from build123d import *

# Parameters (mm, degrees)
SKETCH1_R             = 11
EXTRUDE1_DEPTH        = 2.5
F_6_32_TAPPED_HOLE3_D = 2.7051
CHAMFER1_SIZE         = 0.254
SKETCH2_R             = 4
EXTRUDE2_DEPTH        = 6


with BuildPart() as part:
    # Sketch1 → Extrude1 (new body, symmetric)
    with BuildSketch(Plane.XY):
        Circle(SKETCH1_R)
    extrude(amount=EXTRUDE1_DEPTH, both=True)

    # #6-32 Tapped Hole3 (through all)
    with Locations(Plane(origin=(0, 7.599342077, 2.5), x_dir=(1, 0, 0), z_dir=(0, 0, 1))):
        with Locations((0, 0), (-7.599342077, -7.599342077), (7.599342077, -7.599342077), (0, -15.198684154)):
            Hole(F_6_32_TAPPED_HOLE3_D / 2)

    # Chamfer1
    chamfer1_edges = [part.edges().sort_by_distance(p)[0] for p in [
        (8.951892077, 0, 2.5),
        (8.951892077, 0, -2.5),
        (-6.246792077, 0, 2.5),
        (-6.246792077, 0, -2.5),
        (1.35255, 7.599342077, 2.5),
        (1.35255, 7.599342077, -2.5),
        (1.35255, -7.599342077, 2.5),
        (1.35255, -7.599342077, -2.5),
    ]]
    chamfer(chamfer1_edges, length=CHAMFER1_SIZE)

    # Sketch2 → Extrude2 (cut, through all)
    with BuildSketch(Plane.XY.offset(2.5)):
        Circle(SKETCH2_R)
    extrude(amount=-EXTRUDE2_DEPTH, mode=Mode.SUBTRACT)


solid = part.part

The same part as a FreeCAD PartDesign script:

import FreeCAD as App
import Part
import Sketcher
from FreeCAD import Vector
Q = App.Units.Quantity


def edges_at(feature, points):
    """Names of the edges that pass closest to the given points."""
    edges = feature.Shape.Edges
    near = lambda p: min(range(len(edges)), key=lambda i: edges[i].distToShape(Part.Vertex(*p))[0])
    return sorted({f"Edge{near(p) + 1}" for p in points})

doc = App.newDocument("Part")
body = doc.addObject("PartDesign::Body", "Body")

# Sketch on XY plane
sketch1 = body.newObject("Sketcher::SketchObject", "Sketch")
sketch1.AttachmentSupport = (doc.getObject("XY_Plane"), [""])
sketch1.MapMode = "FlatFace"
sketch1.addGeometry(Part.Circle(Vector(0, 0, 0), Vector(0, 0, 1), 11), False)
sketch1.addConstraint(Sketcher.Constraint("Coincident", 0, 3, -1, 1))
sketch1.addConstraint(Sketcher.Constraint("Diameter", 0, Q("22 mm")))
pad1 = body.newObject("PartDesign::Pad", "Pad")
pad1.Profile = sketch1
pad1.Length = 5
pad1.Midplane = True

# Sketch on XY plane
sketch2 = body.newObject("Sketcher::SketchObject", "Sketch001")
sketch2.AttachmentSupport = (doc.getObject("XY_Plane"), [""])
sketch2.MapMode = "FlatFace"
sketch2.AttachmentOffset = App.Placement(Vector(0, 0, 2.5), App.Rotation())
sketch2.addGeometry(Part.Circle(Vector(0, 7.599342, 0), Vector(0, 0, 1), 1.35255), False)
sketch2.addGeometry(Part.Circle(Vector(-7.599342, 0, 0), Vector(0, 0, 1), 1.35255), False)
sketch2.addGeometry(Part.Circle(Vector(7.599342, 0, 0), Vector(0, 0, 1), 1.35255), False)
sketch2.addGeometry(Part.Circle(Vector(0, -7.599342, 0), Vector(0, 0, 1), 1.35255), False)
sketch2.addConstraint(Sketcher.Constraint("Equal", 0, 1))
sketch2.addConstraint(Sketcher.Constraint("Equal", 1, 2))
sketch2.addConstraint(Sketcher.Constraint("Equal", 2, 3))
sketch2.addConstraint(Sketcher.Constraint("Symmetric", 1, 3, 2, 3, -1, 1))
sketch2.addConstraint(Sketcher.Constraint("Symmetric", 0, 3, 3, 3, -1, 1))
sketch2.addConstraint(Sketcher.Constraint("PointOnObject", 0, 3, -2))
sketch2.addConstraint(Sketcher.Constraint("PointOnObject", 1, 3, -1))
sketch2.addConstraint(Sketcher.Constraint("Diameter", 0, Q("2.7051 mm")))
sketch2.addConstraint(Sketcher.Constraint("DistanceY", -1, 1, 0, 3, Q("7.599342 mm")))
sketch2.addConstraint(Sketcher.Constraint("DistanceX", 1, 3, -1, 1, Q("7.599342 mm")))
doc.recompute()
hole = body.newObject("PartDesign::Hole", "Hole")
hole.Profile = sketch2
hole.ThreadType = "None"
hole.Diameter = 2.7051
hole.DepthType = "ThroughAll"
doc.recompute()

chamfer = body.newObject("PartDesign::Chamfer", "Chamfer")
chamfer.Base = (hole, edges_at(hole, [
    (8.952, 0, 2.5),
    (8.952, 0, -2.5),
    (-6.247, 0, 2.5),
    (-6.247, 0, -2.5),
    (1.353, 7.599, 2.5),
    (1.353, 7.599, -2.5),
    (1.353, -7.599, 2.5),
    (1.353, -7.599, -2.5),
]))
chamfer.Size = 0.254

# Sketch on XY plane
sketch3 = body.newObject("Sketcher::SketchObject", "Sketch002")
sketch3.AttachmentSupport = (doc.getObject("XY_Plane"), [""])
sketch3.MapMode = "FlatFace"
sketch3.AttachmentOffset = App.Placement(Vector(0, 0, 2.5), App.Rotation())
sketch3.addGeometry(Part.Circle(Vector(0, 0, 0), Vector(0, 0, 1), 4), False)
sketch3.addConstraint(Sketcher.Constraint("Coincident", 0, 3, -1, 1))
sketch3.addConstraint(Sketcher.Constraint("Diameter", 0, Q("8 mm")))
pocket1 = body.newObject("PartDesign::Pocket", "Pocket")
pocket1.Profile = sketch3
pocket1.Type = "ThroughAll"

doc.recompute()
